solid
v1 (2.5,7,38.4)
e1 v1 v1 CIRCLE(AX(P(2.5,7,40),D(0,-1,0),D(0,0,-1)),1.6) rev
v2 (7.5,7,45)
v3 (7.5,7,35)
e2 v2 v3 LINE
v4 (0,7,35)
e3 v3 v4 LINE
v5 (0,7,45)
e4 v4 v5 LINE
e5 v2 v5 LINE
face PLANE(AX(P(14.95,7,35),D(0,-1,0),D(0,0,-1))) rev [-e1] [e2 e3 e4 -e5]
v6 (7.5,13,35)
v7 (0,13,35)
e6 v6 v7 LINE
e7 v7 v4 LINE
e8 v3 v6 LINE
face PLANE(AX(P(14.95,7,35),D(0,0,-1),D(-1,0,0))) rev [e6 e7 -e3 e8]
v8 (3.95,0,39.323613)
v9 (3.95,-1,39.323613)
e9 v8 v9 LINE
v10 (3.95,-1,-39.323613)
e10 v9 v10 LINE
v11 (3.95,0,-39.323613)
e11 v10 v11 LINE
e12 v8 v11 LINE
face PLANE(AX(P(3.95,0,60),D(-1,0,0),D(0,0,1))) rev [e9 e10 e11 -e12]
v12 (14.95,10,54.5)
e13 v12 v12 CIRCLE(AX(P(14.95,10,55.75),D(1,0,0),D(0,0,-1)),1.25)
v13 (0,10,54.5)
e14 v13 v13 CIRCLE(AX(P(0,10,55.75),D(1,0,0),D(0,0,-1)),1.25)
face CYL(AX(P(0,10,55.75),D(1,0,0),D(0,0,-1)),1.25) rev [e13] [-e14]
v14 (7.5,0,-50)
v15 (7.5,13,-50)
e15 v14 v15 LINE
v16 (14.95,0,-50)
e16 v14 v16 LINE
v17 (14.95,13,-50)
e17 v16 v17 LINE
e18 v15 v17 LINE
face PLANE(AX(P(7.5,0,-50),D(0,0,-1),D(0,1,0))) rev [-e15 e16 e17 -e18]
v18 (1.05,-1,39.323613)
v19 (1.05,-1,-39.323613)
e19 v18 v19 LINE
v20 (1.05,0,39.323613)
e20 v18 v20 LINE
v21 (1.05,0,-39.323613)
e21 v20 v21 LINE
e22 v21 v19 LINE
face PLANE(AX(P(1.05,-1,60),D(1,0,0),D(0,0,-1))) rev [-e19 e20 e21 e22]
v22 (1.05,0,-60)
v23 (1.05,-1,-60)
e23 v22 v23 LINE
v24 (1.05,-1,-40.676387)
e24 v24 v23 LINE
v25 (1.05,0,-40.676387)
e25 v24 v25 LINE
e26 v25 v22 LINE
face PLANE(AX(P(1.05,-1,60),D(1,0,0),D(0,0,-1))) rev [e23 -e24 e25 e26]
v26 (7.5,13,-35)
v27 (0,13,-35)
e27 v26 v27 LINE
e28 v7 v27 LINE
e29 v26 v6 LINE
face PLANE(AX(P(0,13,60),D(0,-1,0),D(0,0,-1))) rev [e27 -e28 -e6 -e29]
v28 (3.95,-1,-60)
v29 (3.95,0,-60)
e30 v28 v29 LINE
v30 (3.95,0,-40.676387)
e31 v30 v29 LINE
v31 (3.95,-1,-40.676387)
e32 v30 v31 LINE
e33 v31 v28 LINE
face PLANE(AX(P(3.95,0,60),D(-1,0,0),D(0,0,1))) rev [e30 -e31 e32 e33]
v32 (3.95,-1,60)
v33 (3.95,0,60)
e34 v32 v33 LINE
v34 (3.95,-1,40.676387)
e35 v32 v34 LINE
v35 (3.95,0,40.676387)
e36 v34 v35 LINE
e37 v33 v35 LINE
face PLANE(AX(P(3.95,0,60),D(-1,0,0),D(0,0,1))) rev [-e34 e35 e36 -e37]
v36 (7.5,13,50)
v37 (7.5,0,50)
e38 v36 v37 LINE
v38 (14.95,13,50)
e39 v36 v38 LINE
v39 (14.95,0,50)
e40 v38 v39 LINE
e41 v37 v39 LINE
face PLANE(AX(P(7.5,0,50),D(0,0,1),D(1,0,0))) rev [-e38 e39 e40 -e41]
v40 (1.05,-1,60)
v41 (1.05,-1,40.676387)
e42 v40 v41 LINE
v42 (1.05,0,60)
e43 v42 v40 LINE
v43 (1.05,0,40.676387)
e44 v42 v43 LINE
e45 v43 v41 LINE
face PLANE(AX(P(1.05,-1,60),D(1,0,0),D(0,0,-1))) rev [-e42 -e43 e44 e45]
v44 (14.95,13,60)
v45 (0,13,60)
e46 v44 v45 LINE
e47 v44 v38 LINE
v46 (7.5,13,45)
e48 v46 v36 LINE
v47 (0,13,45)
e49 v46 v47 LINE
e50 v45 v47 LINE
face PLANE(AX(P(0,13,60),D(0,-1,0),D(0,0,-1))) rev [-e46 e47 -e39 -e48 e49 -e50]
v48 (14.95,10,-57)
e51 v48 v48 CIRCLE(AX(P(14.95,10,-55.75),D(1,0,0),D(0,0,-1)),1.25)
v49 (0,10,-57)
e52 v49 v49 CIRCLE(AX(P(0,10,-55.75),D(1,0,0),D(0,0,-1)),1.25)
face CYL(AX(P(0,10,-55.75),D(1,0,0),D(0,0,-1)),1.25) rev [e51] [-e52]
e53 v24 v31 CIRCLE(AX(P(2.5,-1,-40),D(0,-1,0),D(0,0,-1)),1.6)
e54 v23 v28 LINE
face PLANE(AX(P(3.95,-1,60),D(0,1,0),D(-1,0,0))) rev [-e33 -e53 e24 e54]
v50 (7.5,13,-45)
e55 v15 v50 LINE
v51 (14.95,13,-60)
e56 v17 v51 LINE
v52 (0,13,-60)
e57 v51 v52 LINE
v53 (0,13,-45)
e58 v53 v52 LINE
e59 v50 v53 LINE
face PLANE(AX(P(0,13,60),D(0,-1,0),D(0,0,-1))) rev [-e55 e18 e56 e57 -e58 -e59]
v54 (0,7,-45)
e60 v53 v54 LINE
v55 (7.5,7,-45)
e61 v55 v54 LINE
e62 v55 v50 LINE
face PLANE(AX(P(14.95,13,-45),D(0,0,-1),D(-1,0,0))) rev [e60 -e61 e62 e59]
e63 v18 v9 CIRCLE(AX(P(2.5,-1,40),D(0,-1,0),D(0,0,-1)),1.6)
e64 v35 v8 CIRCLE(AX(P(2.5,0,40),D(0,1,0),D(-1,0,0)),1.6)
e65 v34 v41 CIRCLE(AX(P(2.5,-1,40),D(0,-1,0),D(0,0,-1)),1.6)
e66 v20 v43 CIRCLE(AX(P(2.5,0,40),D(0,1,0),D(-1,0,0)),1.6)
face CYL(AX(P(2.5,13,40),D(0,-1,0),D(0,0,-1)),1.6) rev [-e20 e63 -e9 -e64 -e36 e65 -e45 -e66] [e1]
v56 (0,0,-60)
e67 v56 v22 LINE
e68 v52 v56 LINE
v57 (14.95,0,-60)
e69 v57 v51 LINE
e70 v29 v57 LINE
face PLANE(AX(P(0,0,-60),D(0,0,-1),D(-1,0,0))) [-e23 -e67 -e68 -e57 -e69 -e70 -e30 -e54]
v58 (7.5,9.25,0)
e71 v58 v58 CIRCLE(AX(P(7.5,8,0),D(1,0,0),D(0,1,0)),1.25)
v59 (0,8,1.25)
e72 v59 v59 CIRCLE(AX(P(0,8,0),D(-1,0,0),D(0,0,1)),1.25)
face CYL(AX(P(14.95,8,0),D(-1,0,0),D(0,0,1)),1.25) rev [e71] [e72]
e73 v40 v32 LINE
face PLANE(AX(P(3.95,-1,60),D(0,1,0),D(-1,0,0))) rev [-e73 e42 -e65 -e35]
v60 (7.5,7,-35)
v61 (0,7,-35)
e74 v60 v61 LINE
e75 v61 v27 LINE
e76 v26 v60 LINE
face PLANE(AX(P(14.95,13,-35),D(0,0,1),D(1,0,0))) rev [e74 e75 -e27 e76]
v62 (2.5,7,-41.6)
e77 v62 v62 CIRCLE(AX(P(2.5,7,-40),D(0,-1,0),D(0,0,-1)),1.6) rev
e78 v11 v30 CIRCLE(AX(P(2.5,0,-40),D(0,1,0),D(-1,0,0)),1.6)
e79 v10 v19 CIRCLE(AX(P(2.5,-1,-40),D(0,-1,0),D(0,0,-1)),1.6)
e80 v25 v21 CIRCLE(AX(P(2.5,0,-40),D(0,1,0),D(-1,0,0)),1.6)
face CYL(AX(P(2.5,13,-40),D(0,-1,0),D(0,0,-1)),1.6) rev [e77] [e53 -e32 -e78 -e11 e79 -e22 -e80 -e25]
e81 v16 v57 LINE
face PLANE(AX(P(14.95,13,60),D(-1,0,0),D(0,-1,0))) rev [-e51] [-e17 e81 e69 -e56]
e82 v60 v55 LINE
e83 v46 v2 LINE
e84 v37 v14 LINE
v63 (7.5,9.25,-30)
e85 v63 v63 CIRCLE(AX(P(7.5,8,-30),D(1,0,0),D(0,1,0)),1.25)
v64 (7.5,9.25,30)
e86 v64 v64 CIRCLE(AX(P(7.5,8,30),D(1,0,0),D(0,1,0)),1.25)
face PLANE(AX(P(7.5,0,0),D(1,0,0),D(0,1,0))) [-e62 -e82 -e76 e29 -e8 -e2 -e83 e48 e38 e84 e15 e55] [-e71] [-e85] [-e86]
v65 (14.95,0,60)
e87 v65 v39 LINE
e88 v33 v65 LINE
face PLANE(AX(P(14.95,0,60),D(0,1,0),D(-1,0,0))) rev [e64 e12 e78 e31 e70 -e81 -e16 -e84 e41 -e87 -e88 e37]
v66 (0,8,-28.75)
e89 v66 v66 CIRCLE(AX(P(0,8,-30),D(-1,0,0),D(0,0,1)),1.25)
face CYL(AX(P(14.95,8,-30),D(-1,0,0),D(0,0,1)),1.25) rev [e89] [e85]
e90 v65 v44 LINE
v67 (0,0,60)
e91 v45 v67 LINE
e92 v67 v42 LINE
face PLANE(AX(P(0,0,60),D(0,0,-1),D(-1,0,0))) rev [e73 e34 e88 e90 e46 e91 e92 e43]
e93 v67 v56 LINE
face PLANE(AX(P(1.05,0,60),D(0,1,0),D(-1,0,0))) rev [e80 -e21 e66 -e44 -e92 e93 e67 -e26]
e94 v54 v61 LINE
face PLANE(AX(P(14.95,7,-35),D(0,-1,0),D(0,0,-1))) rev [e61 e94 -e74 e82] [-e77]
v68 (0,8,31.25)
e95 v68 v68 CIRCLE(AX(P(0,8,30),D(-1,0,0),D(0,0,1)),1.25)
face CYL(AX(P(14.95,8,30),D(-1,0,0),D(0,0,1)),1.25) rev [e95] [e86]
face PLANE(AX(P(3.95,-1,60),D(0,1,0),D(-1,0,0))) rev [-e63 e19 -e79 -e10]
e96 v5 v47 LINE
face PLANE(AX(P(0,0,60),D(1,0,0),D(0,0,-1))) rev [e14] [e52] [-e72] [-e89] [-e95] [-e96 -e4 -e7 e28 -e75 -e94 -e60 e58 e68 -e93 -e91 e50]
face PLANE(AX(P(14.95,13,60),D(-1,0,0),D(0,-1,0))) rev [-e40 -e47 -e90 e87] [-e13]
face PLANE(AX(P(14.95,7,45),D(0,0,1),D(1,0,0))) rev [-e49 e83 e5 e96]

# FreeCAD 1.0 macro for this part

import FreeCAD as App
import Part
import Sketcher
Q = App.Units.Quantity


def add_polygon(sketch, points):
    """Adds a closed chain of lines whose ends are joined by coincident constraints."""
    first, n = sketch.GeometryCount, len(points)
    for a, b in zip(points, points[1:] + points[:1]):
        sketch.addGeometry(Part.LineSegment(App.Vector(*a, 0), App.Vector(*b, 0)), False)
    for i in range(n):
        sketch.addConstraint(Sketcher.Constraint("Coincident", first + i, 2, first + (i + 1) % n, 1))

doc = App.newDocument("Part")
params = doc.addObject("Spreadsheet::Sheet", "Params")
for row, (alias, value) in enumerate([
    ("sketch1_width", "11 mm"),
    ("sketch1_height", "13 mm"),
    ("sketch1_height2", "1 mm"),
    ("sketch1_width2", "2.9 mm"),
    ("sketch1_width3", "14.95 mm"),
    ("pad1_length", "120 mm"),
    ("sketch2_diameter", "2.5 mm"),
    ("sketch3_diameter", "3.2 mm"),
    ("sketch4_width", "13 mm"),
    ("sketch4_height", "100 mm"),
    ("pocket3_length", "7.45 mm"),
    ("sketch5_diameter", "2.5 mm"),
    ("sketch6_width", "6 mm"),
    ("sketch6_height", "10 mm"),
], start=1):
    params.set(f"A{row}", alias)
    params.set(f"B{row}", "=" + value)
    params.setAlias(f"B{row}", alias)

body = doc.addObject("PartDesign::Body", "Body")

# Sketch on XY plane
sketch1 = doc.addObject("Sketcher::SketchObject", "Sketch")
body.addObject(sketch1)
sketch1.AttachmentSupport = (doc.XY_Plane, [""])
sketch1.MapMode = "FlatFace"
add_polygon(sketch1, [(14.95, 13), (0, 13), (0, 0), (1.05, 0), (1.05, -1), (3.95, -1), (3.95, 0), (14.95, 0)])  # lines 0-7
sketch1.addConstraint([
    Sketcher.Constraint("Horizontal", 0),
    Sketcher.Constraint("Vertical", 1),
    Sketcher.Constraint("Horizontal", 2),
    Sketcher.Constraint("Vertical", 3),
    Sketcher.Constraint("Horizontal", 4),
    Sketcher.Constraint("Vertical", 5),
    Sketcher.Constraint("Horizontal", 6),
    Sketcher.Constraint("Vertical", 7),
    Sketcher.Constraint("Coincident", 1, 2, -1, 1),
    Sketcher.Constraint("PointOnObject", 5, 2, -1),
    Sketcher.Constraint("DistanceX", 6, 1, 6, 2, Q("11 mm")),
    Sketcher.Constraint("DistanceY", 1, 2, 1, 1, Q("13 mm")),
    Sketcher.Constraint("DistanceY", 3, 2, 3, 1, Q("1 mm")),
    Sketcher.Constraint("DistanceX", 4, 1, 4, 2, Q("2.9 mm")),
    Sketcher.Constraint("DistanceX", 0, 2, 0, 1, Q("14.95 mm")),
])
sketch1.setExpression("Constraints[18]", "Params.sketch1_width")
sketch1.setExpression("Constraints[19]", "Params.sketch1_height")
sketch1.setExpression("Constraints[20]", "Params.sketch1_height2")
sketch1.setExpression("Constraints[21]", "Params.sketch1_width2")
sketch1.setExpression("Constraints[22]", "Params.sketch1_width3")
pad1 = doc.addObject("PartDesign::Pad", "Pad")
body.addObject(pad1)
pad1.Profile = sketch1
pad1.setExpression("Length", "Params.pad1_length")
pad1.Midplane = True

# Sketch on YZ plane
sketch2 = doc.addObject("Sketcher::SketchObject", "Sketch001")
body.addObject(sketch2)
sketch2.AttachmentSupport = (doc.YZ_Plane, [""])
sketch2.MapMode = "FlatFace"
sketch2.AttachmentOffset = App.Placement(App.Vector(0, 0, 14.95), App.Rotation())
sketch2.addGeometry([
    Part.Circle(App.Vector(10, -55.75, 0), App.Vector(0, 0, 1), 1.25),
    Part.Circle(App.Vector(10, 55.75, 0), App.Vector(0, 0, 1), 1.25),
], False)
sketch2.addConstraint([
    Sketcher.Constraint("Equal", 0, 1),
    Sketcher.Constraint("Symmetric", 0, 3, 1, 3, -1),
    Sketcher.Constraint("Diameter", 0, Q("2.5 mm")),
    Sketcher.Constraint("DistanceX", -1, 1, 0, 3, Q("10 mm")),
    Sketcher.Constraint("DistanceY", 0, 3, 1, 3, Q("111.5 mm")),
])
sketch2.setExpression("Constraints[2]", "Params.sketch2_diameter")
pocket1 = doc.addObject("PartDesign::Pocket", "Pocket")
body.addObject(pocket1)
pocket1.Profile = sketch2
pocket1.Type = "ThroughAll"

# Sketch on XZ plane
sketch3 = doc.addObject("Sketcher::SketchObject", "Sketch002")
body.addObject(sketch3)
sketch3.AttachmentSupport = (doc.XZ_Plane, [""])
sketch3.MapMode = "FlatFace"
sketch3.AttachmentOffset = App.Placement(App.Vector(0, 0, 1), App.Rotation())
sketch3.addGeometry([
    Part.Circle(App.Vector(2.5, 40, 0), App.Vector(0, 0, 1), 1.6),
    Part.Circle(App.Vector(2.5, -40, 0), App.Vector(0, 0, 1), 1.6),
], False)
sketch3.addConstraint([
    Sketcher.Constraint("Equal", 0, 1),
    Sketcher.Constraint("Symmetric", 0, 3, 1, 3, -1),
    Sketcher.Constraint("Diameter", 0, Q("3.2 mm")),
    Sketcher.Constraint("DistanceY", -1, 1, 0, 3, Q("40 mm")),
    Sketcher.Constraint("DistanceX", -1, 1, 0, 3, Q("2.5 mm")),
])
sketch3.setExpression("Constraints[2]", "Params.sketch3_diameter")
pocket2 = doc.addObject("PartDesign::Pocket", "Pocket001")
body.addObject(pocket2)
pocket2.Profile = sketch3
pocket2.Type = "ThroughAll"

# Sketch on YZ plane
sketch4 = doc.addObject("Sketcher::SketchObject", "Sketch003")
body.addObject(sketch4)
sketch4.AttachmentSupport = (doc.YZ_Plane, [""])
sketch4.MapMode = "FlatFace"
sketch4.AttachmentOffset = App.Placement(App.Vector(0, 0, 14.95), App.Rotation())
add_polygon(sketch4, [(13, 50), (0, 50), (0, -50), (13, -50)])  # lines 0-3
sketch4.addConstraint([
    Sketcher.Constraint("Horizontal", 0),
    Sketcher.Constraint("Vertical", 1),
    Sketcher.Constraint("Horizontal", 2),
    Sketcher.Constraint("Vertical", 3),
    Sketcher.Constraint("Symmetric", 0, 2, 1, 2, -1, 1),
    Sketcher.Constraint("DistanceX", 0, 2, 0, 1, Q("13 mm")),
    Sketcher.Constraint("DistanceY", 1, 2, 1, 1, Q("100 mm")),
])
sketch4.setExpression("Constraints[9]", "Params.sketch4_width")
sketch4.setExpression("Constraints[10]", "Params.sketch4_height")
pocket3 = doc.addObject("PartDesign::Pocket", "Pocket002")
body.addObject(pocket3)
pocket3.Profile = sketch4
pocket3.setExpression("Length", "Params.pocket3_length")

# Sketch on YZ plane
sketch5 = doc.addObject("Sketcher::SketchObject", "Sketch004")
body.addObject(sketch5)
sketch5.AttachmentSupport = (doc.YZ_Plane, [""])
sketch5.MapMode = "FlatFace"
sketch5.addGeometry([
    Part.Circle(App.Vector(8, 0, 0), App.Vector(0, 0, 1), 1.25),
    Part.Circle(App.Vector(8, -30, 0), App.Vector(0, 0, 1), 1.25),
    Part.Circle(App.Vector(8, 30, 0), App.Vector(0, 0, 1), 1.25),
], False)
sketch5.addConstraint([
    Sketcher.Constraint("Equal", 0, 1),
    Sketcher.Constraint("Equal", 1, 2),
    Sketcher.Constraint("Symmetric", 1, 3, 2, 3, -1),
    Sketcher.Constraint("PointOnObject", 0, 3, -1),
    Sketcher.Constraint("Vertical", 0, 3, 1, 3),
    Sketcher.Constraint("Diameter", 0, Q("2.5 mm")),
    Sketcher.Constraint("DistanceX", -1, 1, 0, 3, Q("8 mm")),
    Sketcher.Constraint("DistanceY", 1, 3, -1, 1, Q("30 mm")),
])
sketch5.setExpression("Constraints[5]", "Params.sketch5_diameter")
pocket4 = doc.addObject("PartDesign::Pocket", "Pocket003")
body.addObject(pocket4)
pocket4.Profile = sketch5
pocket4.Type = "ThroughAll"
pocket4.Reversed = True

# Sketch on YZ plane
sketch6 = doc.addObject("Sketcher::SketchObject", "Sketch005")
body.addObject(sketch6)
sketch6.AttachmentSupport = (doc.YZ_Plane, [""])
sketch6.MapMode = "FlatFace"
add_polygon(sketch6, [(13, -45), (7, -45), (7, -35), (13, -35)])  # lines 0-3
add_polygon(sketch6, [(13, 35), (7, 35), (7, 45), (13, 45)])  # lines 4-7
sketch6.addConstraint([
    Sketcher.Constraint("Horizontal", 0),
    Sketcher.Constraint("Vertical", 1),
    Sketcher.Constraint("Horizontal", 2),
    Sketcher.Constraint("Vertical", 3),
    Sketcher.Constraint("Horizontal", 4),
    Sketcher.Constraint("Vertical", 5),
    Sketcher.Constraint("Horizontal", 6),
    Sketcher.Constraint("Vertical", 7),
    Sketcher.Constraint("Symmetric", 1, 2, 4, 2, -1),
    Sketcher.Constraint("Symmetric", 3, 2, 6, 2, -1),
    Sketcher.Constraint("DistanceX", 0, 2, 0, 1, Q("6 mm")),
    Sketcher.Constraint("DistanceY", 1, 1, 1, 2, Q("10 mm")),
    Sketcher.Constraint("DistanceX", -1, 1, 0, 2, Q("7 mm")),
    Sketcher.Constraint("DistanceY", 0, 2, -1, 1, Q("45 mm")),
])
sketch6.setExpression("Constraints[18]", "Params.sketch6_width")
sketch6.setExpression("Constraints[19]", "Params.sketch6_height")
pocket5 = doc.addObject("PartDesign::Pocket", "Pocket004")
body.addObject(pocket5)
pocket5.Profile = sketch6
pocket5.Type = "ThroughAll"
pocket5.Reversed = True

doc.recompute()
